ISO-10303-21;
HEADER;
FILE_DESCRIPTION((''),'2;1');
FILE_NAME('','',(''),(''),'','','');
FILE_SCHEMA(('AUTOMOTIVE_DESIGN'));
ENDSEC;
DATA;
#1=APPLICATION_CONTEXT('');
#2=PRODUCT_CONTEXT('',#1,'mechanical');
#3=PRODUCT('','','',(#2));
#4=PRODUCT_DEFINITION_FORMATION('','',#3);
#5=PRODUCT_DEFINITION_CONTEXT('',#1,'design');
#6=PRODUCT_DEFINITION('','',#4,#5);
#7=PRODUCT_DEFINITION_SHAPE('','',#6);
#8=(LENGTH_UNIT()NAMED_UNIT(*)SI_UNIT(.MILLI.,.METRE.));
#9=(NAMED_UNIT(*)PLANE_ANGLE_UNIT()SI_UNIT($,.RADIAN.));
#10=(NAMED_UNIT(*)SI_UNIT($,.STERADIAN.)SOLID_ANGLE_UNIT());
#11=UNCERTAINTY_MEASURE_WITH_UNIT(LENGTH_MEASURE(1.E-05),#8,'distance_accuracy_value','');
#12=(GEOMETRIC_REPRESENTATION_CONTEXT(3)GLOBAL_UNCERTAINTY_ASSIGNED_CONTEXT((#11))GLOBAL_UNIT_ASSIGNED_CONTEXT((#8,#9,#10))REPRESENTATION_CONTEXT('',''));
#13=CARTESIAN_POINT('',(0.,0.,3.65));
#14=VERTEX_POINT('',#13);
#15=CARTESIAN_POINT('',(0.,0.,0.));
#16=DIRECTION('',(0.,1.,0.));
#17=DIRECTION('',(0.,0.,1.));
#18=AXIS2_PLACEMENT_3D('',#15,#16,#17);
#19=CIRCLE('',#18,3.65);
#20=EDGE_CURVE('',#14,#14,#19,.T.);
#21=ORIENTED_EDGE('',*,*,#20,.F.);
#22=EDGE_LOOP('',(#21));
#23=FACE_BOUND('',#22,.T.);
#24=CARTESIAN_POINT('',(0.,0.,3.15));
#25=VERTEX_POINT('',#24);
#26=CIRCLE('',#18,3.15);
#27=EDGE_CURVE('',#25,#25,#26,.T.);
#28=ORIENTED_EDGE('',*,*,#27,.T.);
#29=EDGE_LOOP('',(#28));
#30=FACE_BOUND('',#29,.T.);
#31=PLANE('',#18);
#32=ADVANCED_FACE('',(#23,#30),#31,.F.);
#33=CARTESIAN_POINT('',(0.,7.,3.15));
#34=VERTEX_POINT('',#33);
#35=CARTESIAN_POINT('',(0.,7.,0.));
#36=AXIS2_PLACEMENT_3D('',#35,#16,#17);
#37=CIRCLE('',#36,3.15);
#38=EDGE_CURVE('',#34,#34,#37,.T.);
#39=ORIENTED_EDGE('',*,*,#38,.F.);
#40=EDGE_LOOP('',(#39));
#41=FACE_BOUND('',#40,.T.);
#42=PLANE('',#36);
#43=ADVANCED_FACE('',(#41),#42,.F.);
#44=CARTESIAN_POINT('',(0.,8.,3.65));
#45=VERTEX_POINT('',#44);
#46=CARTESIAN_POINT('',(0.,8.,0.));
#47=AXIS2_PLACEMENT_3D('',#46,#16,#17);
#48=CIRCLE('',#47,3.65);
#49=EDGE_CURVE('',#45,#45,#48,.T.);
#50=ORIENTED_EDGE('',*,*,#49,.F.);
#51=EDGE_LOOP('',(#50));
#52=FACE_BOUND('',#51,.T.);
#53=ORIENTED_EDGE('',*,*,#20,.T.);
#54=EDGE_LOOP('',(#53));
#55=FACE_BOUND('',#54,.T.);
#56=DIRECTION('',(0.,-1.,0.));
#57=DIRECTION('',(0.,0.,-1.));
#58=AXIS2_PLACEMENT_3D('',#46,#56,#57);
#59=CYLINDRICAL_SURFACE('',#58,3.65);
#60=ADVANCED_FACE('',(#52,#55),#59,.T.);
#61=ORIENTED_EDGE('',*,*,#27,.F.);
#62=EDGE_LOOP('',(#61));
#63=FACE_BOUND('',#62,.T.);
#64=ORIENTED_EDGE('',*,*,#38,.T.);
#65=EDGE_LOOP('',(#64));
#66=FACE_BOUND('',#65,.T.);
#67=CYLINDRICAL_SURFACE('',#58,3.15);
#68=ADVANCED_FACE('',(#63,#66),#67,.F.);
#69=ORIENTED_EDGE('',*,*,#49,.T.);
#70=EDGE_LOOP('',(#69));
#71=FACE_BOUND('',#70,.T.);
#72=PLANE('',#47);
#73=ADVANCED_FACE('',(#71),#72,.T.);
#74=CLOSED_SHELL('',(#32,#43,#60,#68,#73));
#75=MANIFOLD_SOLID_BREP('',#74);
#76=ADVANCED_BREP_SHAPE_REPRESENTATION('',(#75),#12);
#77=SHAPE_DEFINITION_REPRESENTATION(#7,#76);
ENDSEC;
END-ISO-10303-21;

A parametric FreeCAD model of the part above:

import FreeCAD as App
import Part
import Sketcher
from FreeCAD import Vector

doc = App.newDocument("Part")
body = doc.addObject("PartDesign::Body", "Body")

# Sketch on XZ plane
sketch1 = body.newObject("Sketcher::SketchObject", "Sketch")
sketch1.AttachmentSupport = (doc.getObject("XZ_Plane"), [""])
sketch1.MapMode = "FlatFace"
sketch1.addGeometry([
    Part.Circle(Vector(0, 0, 0), Vector(0, 0, 1), 3.6),
    Part.Circle(Vector(0, 0, 0), Vector(0, 0, 1), 3.1),
], False)
sketch1.addConstraint([
    Sketcher.Constraint("Coincident", 0, 3, -1, 1),
    Sketcher.Constraint("Coincident", 1, 3, -1, 1),
    Sketcher.Constraint("Diameter", 0, 7.3),
    Sketcher.Constraint("Diameter", 1, 6.3),
])
pad1 = body.newObject("PartDesign::Pad", "Pad")
pad1.Profile = sketch1
pad1.Length = 8
pad1.Reversed = True

# Sketch on XZ plane
sketch2 = body.newObject("Sketcher::SketchObject", "Sketch001")
sketch2.AttachmentSupport = (doc.getObject("XZ_Plane"), [""])
sketch2.MapMode = "FlatFace"
sketch2.AttachmentOffset = App.Placement(Vector(0, 0, -8), App.Rotation())
sketch2.addGeometry(Part.Circle(Vector(0, 0, 0), Vector(0, 0, 1), 3.5), False)
sketch2.addConstraint([
    Sketcher.Constraint("Coincident", 0, 3, -1, 1),
    Sketcher.Constraint("Diameter", 0, 7.037749),
])
pad2 = body.newObject("PartDesign::Pad", "Pad001")
pad2.Profile = sketch2
pad2.Length = 1

doc.recompute()
